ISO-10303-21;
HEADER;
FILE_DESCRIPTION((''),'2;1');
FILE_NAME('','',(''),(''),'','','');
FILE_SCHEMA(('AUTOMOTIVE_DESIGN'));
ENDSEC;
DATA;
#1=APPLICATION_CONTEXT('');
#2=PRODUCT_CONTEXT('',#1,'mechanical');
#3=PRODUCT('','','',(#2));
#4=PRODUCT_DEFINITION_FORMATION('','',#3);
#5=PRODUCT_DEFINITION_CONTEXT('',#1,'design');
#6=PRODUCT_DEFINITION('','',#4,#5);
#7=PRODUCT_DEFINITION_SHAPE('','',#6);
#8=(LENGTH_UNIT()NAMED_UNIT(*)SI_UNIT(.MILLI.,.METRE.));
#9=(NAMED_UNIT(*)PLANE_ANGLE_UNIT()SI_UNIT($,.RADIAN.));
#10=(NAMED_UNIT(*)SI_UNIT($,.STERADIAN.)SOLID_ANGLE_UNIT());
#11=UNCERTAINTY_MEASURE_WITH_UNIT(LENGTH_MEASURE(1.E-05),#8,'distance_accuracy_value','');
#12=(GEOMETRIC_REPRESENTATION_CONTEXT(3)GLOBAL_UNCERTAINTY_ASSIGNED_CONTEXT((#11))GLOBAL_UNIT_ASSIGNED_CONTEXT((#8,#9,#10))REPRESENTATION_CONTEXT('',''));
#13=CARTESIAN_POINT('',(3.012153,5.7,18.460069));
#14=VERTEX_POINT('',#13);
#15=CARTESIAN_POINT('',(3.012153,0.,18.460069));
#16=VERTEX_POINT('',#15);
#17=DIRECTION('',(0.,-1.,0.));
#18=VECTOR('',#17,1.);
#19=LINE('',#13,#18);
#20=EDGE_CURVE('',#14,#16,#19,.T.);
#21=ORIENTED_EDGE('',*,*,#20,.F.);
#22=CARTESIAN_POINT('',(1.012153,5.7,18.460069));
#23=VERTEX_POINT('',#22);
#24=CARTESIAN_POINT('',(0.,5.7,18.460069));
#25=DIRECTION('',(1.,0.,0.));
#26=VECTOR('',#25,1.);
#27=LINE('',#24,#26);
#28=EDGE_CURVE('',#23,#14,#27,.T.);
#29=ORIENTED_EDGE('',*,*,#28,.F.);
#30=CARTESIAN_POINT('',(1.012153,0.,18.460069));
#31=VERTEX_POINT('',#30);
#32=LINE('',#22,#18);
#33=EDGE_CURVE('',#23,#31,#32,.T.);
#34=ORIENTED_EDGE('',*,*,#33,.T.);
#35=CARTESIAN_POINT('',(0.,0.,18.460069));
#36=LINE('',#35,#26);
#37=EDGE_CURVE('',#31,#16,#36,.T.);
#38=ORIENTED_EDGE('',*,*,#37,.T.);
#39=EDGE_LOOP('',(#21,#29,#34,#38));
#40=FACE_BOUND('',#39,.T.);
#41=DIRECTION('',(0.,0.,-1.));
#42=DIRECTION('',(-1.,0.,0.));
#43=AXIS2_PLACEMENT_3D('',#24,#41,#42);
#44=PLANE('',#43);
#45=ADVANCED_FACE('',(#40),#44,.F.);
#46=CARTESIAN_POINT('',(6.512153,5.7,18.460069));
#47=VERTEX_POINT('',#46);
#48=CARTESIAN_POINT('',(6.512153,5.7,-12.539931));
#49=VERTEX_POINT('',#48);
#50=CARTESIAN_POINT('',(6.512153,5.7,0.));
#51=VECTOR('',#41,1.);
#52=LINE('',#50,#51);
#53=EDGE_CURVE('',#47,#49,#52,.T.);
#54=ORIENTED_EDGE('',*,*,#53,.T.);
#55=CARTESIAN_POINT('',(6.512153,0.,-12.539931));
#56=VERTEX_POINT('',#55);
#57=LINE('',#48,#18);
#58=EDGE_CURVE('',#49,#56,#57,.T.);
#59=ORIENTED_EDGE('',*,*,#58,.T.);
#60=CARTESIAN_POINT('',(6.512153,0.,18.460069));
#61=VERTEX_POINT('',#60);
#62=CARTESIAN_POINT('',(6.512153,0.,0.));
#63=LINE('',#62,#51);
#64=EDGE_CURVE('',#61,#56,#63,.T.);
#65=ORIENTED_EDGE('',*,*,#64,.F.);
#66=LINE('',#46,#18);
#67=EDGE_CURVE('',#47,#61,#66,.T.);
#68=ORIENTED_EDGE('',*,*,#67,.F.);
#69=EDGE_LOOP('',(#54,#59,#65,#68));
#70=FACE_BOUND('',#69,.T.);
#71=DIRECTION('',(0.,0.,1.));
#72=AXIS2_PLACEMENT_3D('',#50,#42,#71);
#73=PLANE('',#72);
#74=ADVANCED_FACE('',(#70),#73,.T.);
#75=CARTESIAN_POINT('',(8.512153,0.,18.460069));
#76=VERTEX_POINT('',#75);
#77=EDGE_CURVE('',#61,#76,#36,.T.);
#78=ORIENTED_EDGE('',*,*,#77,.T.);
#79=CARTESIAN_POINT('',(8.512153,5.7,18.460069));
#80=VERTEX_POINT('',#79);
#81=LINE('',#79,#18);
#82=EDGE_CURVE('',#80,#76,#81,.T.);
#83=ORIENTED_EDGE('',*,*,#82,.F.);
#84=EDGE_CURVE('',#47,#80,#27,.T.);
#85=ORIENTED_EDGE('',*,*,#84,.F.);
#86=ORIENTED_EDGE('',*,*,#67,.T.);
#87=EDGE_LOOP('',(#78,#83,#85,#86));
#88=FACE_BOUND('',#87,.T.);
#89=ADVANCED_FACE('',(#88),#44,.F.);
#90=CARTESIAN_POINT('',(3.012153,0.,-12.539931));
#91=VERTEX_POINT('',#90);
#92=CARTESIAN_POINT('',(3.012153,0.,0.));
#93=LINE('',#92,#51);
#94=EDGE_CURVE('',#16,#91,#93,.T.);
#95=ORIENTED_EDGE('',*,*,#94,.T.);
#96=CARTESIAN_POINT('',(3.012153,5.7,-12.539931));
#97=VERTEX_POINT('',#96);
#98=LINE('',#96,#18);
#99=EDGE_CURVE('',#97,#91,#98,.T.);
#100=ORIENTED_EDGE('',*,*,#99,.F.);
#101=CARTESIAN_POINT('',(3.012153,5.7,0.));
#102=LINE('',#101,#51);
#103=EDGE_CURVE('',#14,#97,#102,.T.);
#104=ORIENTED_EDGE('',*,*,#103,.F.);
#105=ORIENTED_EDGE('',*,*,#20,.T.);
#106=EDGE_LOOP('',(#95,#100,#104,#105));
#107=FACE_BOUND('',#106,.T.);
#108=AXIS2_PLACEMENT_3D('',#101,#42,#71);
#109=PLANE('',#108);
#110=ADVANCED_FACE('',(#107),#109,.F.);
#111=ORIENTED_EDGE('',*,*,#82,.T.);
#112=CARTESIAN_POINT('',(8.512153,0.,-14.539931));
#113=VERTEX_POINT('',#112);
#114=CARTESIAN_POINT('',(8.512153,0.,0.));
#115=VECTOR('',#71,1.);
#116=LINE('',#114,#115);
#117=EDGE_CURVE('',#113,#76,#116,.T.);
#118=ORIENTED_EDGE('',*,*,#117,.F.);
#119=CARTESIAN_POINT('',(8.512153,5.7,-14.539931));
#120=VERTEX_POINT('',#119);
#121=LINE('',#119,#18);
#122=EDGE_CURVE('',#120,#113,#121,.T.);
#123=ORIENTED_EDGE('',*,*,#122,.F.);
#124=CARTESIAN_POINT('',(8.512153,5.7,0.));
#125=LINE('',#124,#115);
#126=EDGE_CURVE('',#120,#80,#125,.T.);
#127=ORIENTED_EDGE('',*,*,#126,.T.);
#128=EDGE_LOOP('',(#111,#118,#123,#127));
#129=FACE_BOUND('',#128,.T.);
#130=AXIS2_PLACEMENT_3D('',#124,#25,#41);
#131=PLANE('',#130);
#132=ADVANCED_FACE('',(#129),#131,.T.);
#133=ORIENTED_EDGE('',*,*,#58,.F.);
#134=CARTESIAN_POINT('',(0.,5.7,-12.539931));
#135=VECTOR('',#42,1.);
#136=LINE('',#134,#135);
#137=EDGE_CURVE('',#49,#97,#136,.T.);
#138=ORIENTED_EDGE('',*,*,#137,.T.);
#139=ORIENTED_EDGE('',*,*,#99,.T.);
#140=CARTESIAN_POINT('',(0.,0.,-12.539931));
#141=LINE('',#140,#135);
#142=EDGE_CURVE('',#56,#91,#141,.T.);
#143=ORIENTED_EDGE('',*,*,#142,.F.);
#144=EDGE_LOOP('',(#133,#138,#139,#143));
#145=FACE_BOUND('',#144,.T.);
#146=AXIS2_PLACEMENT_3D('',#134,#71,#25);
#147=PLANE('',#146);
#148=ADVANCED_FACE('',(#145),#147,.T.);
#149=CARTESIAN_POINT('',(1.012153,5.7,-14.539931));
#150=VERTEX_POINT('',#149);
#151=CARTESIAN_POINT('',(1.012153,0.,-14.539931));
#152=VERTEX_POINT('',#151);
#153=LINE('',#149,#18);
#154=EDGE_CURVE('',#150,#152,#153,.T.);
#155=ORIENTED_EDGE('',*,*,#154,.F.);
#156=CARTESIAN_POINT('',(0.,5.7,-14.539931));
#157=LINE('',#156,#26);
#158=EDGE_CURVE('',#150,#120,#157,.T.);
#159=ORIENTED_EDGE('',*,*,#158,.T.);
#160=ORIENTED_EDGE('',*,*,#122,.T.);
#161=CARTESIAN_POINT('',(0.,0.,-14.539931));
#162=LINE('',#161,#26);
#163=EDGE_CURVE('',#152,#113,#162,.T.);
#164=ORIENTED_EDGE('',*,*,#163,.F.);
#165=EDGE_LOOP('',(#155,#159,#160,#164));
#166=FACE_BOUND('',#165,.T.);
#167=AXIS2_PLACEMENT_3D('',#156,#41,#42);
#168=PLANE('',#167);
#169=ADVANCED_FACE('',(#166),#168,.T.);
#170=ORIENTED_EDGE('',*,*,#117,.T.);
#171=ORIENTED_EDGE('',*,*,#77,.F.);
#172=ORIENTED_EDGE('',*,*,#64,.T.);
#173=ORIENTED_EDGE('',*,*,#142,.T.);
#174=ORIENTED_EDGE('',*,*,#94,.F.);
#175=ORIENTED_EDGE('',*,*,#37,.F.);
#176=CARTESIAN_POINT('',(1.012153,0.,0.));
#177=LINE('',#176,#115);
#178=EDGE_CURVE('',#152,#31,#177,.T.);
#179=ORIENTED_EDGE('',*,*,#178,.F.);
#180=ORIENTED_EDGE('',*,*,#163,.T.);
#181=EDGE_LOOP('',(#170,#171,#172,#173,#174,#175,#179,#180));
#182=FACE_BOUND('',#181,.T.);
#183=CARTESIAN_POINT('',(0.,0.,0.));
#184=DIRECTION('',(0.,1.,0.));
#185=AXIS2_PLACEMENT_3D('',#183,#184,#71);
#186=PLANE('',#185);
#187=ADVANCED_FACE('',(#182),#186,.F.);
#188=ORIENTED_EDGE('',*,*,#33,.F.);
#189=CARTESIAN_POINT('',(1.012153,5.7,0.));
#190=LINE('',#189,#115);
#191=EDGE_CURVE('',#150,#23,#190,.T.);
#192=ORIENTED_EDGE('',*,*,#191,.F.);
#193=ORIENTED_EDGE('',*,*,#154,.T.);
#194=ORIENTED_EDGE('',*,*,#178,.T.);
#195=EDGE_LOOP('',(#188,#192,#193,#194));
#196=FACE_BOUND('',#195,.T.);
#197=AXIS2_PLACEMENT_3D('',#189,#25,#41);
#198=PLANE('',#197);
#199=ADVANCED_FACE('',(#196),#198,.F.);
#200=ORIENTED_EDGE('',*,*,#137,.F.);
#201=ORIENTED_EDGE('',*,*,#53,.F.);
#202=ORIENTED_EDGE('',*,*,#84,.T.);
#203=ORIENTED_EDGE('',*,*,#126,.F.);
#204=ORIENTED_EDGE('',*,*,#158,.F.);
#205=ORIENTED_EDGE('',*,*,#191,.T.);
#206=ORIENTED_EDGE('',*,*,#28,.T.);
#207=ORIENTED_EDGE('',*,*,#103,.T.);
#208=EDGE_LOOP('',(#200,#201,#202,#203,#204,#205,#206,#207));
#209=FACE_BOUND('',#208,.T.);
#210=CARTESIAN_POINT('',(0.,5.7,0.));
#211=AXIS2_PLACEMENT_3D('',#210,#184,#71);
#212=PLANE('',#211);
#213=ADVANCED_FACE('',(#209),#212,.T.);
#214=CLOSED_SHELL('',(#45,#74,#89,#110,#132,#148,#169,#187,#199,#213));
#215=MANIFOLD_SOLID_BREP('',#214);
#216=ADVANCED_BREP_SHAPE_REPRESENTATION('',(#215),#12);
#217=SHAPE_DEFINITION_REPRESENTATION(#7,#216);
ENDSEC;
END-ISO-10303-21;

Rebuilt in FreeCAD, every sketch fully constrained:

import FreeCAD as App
import Part
import Sketcher

V = App.Vector


def add_polygon(sketch, points):
    """Adds a closed chain of lines whose ends are joined by coincident constraints."""
    first, n = sketch.GeometryCount, len(points)
    for a, b in zip(points, points[1:] + points[:1]):
        sketch.addGeometry(Part.LineSegment(App.Vector(*a, 0), App.Vector(*b, 0)), False)
    for i in range(n):
        sketch.addConstraint(Sketcher.Constraint("Coincident", first + i, 2, first + (i + 1) % n, 1))

doc = App.newDocument("Part")
body = doc.addObject("PartDesign::Body", "Body")

# Sketch on XZ plane
sketch1 = body.newObject("Sketcher::SketchObject", "Sketch")
sketch1.AttachmentSupport = (doc.getObject("XZ_Plane"), [""])
sketch1.MapMode = "FlatFace"
add_polygon(sketch1, [(8.5, -14.5), (1, -14.5), (1, 18.5), (3, 18.5), (3, -12.5), (6.5, -12.5), (6.5, 18.5), (8.5, 18.5)])  # lines 0-7
sketch1.addConstraint([
    Sketcher.Constraint("Horizontal", 0),
    Sketcher.Constraint("Vertical", 1),
    Sketcher.Constraint("Horizontal", 2),
    Sketcher.Constraint("Vertical", 3),
    Sketcher.Constraint("Horizontal", 4),
    Sketcher.Constraint("Vertical", 5),
    Sketcher.Constraint("Horizontal", 6),
    Sketcher.Constraint("Vertical", 7),
    Sketcher.Constraint("Horizontal", 2, 2, 5, 2),
    Sketcher.Constraint("Equal", 2, 6),
    Sketcher.Constraint("DistanceX", 2, 1, 2, 2, 2.0),
    Sketcher.Constraint("DistanceY", 1, 1, 1, 2, 33.0),
    Sketcher.Constraint("DistanceY", 3, 2, 3, 1, 31.0),
    Sketcher.Constraint("DistanceX", 0, 2, 0, 1, 7.5),
    Sketcher.Constraint("DistanceY", 0, 2, -1, 1, 14.539931),
    Sketcher.Constraint("DistanceX", -1, 1, 0, 2, 1.012153),
])
pad1 = body.newObject("PartDesign::Pad", "Pad")
pad1.Profile = sketch1
pad1.Length = 5.7
pad1.Reversed = True

doc.recompute()
